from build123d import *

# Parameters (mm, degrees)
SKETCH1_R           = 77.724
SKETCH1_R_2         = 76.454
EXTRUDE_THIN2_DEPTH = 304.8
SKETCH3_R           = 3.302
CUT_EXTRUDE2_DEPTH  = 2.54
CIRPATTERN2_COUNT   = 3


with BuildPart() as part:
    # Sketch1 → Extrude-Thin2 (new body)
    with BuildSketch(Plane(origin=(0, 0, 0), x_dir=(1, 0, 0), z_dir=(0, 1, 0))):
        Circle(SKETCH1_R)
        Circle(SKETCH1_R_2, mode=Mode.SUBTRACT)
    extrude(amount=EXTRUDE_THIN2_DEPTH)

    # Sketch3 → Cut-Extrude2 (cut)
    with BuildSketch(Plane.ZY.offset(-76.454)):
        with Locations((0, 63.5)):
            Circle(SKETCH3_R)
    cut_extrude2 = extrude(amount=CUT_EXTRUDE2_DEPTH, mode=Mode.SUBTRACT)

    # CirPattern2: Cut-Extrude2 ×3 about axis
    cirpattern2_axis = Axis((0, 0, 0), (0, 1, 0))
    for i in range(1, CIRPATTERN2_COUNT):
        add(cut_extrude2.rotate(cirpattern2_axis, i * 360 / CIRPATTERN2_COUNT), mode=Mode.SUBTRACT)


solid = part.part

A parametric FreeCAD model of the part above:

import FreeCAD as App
import Part
import Sketcher
Q = App.Units.Quantity

doc = App.newDocument("Part")
body = doc.addObject("PartDesign::Body", "Body")

sketch1 = doc.addObject("Sketcher::SketchObject", "Sketch")
body.addObject(sketch1)
sketch1.AttachmentSupport = (doc.XZ_Plane, [""])
sketch1.MapMode = "FlatFace"
sketch1.addGeometry([
    Part.Circle(App.Vector(0, 0, 0), App.Vector(0, 0, 1), 78),
    Part.Circle(App.Vector(0, 0, 0), App.Vector(0, 0, 1), 76),
], False)
sketch1.addConstraint([
    Sketcher.Constraint("Coincident", 0, 3, -1, 1),
    Sketcher.Constraint("Coincident", 1, 3, -1, 1),
    Sketcher.Constraint("Diameter", 0, Q("6.12 in")),
    Sketcher.Constraint("Diameter", 1, Q("6.02 in")),
])
pad1 = doc.addObject("PartDesign::Pad", "Pad")
body.addObject(pad1)
pad1.Profile = sketch1
pad1.Length = Q("12 in")
pad1.Reversed = True

sketch2 = doc.addObject("Sketcher::SketchObject", "Sketch001")
body.addObject(sketch2)
sketch2.AttachmentSupport = (doc.YZ_Plane, [""])
sketch2.MapMode = "FlatFace"
sketch2.AttachmentOffset = App.Placement(App.Vector(0, 0, 3.01 * 25.4), App.Rotation())
sketch2.addGeometry(Part.Circle(App.Vector(63.5, 0, 0), App.Vector(0, 0, 1), 3.3), False)
sketch2.addConstraint([
    Sketcher.Constraint("PointOnObject", 0, 3, -1),
    Sketcher.Constraint("Diameter", 0, Q("0.26 in")),
    Sketcher.Constraint("DistanceX", -1, 1, 0, 3, Q("2.5 in")),
])
pocket1 = doc.addObject("PartDesign::Pocket", "Pocket")
body.addObject(pocket1)
pocket1.Profile = sketch2
pocket1.Length = Q("0.1 in")
doc.recompute()

polarpattern = doc.addObject("PartDesign::PolarPattern", "PolarPattern")
body.addObject(polarpattern)
polarpattern.Originals = [pocket1]
polarpattern.Axis = (doc.Y_Axis, [""])
polarpattern.Angle = 360
polarpattern.Occurrences = 3
body.Tip = polarpattern

doc.recompute()
